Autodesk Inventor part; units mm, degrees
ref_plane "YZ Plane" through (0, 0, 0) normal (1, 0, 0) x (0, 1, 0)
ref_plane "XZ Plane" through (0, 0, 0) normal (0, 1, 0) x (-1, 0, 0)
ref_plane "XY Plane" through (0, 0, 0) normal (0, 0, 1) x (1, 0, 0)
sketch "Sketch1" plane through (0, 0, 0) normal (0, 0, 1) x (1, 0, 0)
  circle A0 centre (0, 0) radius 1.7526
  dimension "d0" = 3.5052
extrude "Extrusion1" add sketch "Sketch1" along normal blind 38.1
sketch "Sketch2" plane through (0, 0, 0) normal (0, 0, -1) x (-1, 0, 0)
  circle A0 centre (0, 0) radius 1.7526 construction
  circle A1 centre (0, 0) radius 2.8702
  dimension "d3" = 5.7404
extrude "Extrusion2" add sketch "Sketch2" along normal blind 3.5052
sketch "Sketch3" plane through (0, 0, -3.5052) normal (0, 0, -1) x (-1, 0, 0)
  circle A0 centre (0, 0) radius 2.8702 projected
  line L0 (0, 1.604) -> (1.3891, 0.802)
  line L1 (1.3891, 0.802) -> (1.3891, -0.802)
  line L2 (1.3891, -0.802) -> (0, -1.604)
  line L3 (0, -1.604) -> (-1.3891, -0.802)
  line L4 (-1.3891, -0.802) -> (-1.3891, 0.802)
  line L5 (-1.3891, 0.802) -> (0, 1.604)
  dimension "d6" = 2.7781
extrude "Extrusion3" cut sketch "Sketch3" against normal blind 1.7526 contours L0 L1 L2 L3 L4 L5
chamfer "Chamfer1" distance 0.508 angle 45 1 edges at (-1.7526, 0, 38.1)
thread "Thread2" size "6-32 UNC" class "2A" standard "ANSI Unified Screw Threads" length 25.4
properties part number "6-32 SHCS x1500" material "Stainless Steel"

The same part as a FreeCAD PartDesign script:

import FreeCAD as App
import Part
import Sketcher
from FreeCAD import Vector
Q = App.Units.Quantity


def edges_at(feature, points):
    """Names of the edges that pass closest to the given points."""
    edges = feature.Shape.Edges
    near = lambda p: min(range(len(edges)), key=lambda i: edges[i].distToShape(Part.Vertex(*p))[0])
    return sorted({f"Edge{near(p) + 1}" for p in points})


def add_polygon(sketch, points):
    """Adds a closed chain of lines whose ends are joined by coincident constraints."""
    first, n = sketch.GeometryCount, len(points)
    for a, b in zip(points, points[1:] + points[:1]):
        sketch.addGeometry(Part.LineSegment(App.Vector(*a, 0), App.Vector(*b, 0)), False)
    for i in range(n):
        sketch.addConstraint(Sketcher.Constraint("Coincident", first + i, 2, first + (i + 1) % n, 1))

doc = App.newDocument("Part")
params = doc.addObject("Spreadsheet::Sheet", "Params")
for row, (alias, value) in enumerate([
    ("sketch1_diameter", "0.138 in"),
    ("pad1_length", "1.5 in"),
    ("sketch2_diameter", "0.226 in"),
    ("pad2_length", "0.138 in"),
    ("pocket1_length", "0.069 in"),
    ("chamfer_size", "0.02 in"),
], start=1):
    params.set(f"A{row}", alias)
    params.set(f"B{row}", "=" + value)
    params.setAlias(f"B{row}", alias)

body = doc.addObject("PartDesign::Body", "Body")

sketch1 = body.newObject("Sketcher::SketchObject", "Sketch")
sketch1.AttachmentSupport = (doc.getObject("XY_Plane"), [""])
sketch1.MapMode = "FlatFace"
sketch1.addGeometry(Part.Circle(Vector(0, 0, 0), Vector(0, 0, 1), 1.8), False)
sketch1.addConstraint([
    Sketcher.Constraint("Coincident", 0, 3, -1, 1),
    Sketcher.Constraint("Diameter", 0, Q("0.138 in")),
])
sketch1.setExpression("Constraints[1]", "Params.sketch1_diameter")
pad1 = body.newObject("PartDesign::Pad", "Pad")
pad1.Profile = sketch1
pad1.setExpression("Length", "Params.pad1_length")

sketch2 = body.newObject("Sketcher::SketchObject", "Sketch001")
sketch2.AttachmentSupport = (doc.getObject("XY_Plane"), [""])
sketch2.MapMode = "FlatFace"
sketch2.addGeometry(Part.Circle(Vector(0, 0, 0), Vector(0, 0, 1), 2.9), False)
sketch2.addConstraint([
    Sketcher.Constraint("Coincident", 0, 3, -1, 1),
    Sketcher.Constraint("Diameter", 0, Q("0.226 in")),
])
sketch2.setExpression("Constraints[1]", "Params.sketch2_diameter")
pad2 = body.newObject("PartDesign::Pad", "Pad001")
pad2.Profile = sketch2
pad2.setExpression("Length", "Params.pad2_length")
pad2.Reversed = True

sketch3 = body.newObject("Sketcher::SketchObject", "Sketch002")
sketch3.AttachmentSupport = (doc.getObject("XY_Plane"), [""])
sketch3.MapMode = "FlatFace"
sketch3.AttachmentOffset = App.Placement(Vector(0, 0, -0.138 * 25.4), App.Rotation())
add_polygon(sketch3, [(-1.4, 0.8), (0, 1.6), (1.4, 0.8), (1.4, -0.8), (0, -1.6), (-1.4, -0.8)])
sketch3.addConstraint([
    Sketcher.Constraint("Vertical", 2),
    Sketcher.Constraint("Vertical", 5),
    Sketcher.Constraint("Symmetric", 0, 2, 3, 2, -1, 1),
    Sketcher.Constraint("Symmetric", 1, 2, 4, 2, -1, 1),
    Sketcher.Constraint("PointOnObject", 0, 2, -2),
    Sketcher.Constraint("Parallel", 0, 3),
    Sketcher.Constraint("Horizontal", 2, 2, 4, 2),
    Sketcher.Constraint("Angle", 0, Q("30 deg")),
    Sketcher.Constraint("DistanceX", 4, 2, 2, 2, Q("0.109378 in")),
    Sketcher.Constraint("DistanceY", 2, 2, 2, 1, Q("1.604 mm")),
])
pocket1 = body.newObject("PartDesign::Pocket", "Pocket")
pocket1.Profile = sketch3
pocket1.setExpression("Length", "Params.pocket1_length")
pocket1.Reversed = True
doc.recompute()

chamfer = body.newObject("PartDesign::Chamfer", "Chamfer")
chamfer.Base = (pocket1, edges_at(pocket1, [(-1.753, 0, 38.1)]))
chamfer.setExpression("Size", "Params.chamfer_size")

doc.recompute()
